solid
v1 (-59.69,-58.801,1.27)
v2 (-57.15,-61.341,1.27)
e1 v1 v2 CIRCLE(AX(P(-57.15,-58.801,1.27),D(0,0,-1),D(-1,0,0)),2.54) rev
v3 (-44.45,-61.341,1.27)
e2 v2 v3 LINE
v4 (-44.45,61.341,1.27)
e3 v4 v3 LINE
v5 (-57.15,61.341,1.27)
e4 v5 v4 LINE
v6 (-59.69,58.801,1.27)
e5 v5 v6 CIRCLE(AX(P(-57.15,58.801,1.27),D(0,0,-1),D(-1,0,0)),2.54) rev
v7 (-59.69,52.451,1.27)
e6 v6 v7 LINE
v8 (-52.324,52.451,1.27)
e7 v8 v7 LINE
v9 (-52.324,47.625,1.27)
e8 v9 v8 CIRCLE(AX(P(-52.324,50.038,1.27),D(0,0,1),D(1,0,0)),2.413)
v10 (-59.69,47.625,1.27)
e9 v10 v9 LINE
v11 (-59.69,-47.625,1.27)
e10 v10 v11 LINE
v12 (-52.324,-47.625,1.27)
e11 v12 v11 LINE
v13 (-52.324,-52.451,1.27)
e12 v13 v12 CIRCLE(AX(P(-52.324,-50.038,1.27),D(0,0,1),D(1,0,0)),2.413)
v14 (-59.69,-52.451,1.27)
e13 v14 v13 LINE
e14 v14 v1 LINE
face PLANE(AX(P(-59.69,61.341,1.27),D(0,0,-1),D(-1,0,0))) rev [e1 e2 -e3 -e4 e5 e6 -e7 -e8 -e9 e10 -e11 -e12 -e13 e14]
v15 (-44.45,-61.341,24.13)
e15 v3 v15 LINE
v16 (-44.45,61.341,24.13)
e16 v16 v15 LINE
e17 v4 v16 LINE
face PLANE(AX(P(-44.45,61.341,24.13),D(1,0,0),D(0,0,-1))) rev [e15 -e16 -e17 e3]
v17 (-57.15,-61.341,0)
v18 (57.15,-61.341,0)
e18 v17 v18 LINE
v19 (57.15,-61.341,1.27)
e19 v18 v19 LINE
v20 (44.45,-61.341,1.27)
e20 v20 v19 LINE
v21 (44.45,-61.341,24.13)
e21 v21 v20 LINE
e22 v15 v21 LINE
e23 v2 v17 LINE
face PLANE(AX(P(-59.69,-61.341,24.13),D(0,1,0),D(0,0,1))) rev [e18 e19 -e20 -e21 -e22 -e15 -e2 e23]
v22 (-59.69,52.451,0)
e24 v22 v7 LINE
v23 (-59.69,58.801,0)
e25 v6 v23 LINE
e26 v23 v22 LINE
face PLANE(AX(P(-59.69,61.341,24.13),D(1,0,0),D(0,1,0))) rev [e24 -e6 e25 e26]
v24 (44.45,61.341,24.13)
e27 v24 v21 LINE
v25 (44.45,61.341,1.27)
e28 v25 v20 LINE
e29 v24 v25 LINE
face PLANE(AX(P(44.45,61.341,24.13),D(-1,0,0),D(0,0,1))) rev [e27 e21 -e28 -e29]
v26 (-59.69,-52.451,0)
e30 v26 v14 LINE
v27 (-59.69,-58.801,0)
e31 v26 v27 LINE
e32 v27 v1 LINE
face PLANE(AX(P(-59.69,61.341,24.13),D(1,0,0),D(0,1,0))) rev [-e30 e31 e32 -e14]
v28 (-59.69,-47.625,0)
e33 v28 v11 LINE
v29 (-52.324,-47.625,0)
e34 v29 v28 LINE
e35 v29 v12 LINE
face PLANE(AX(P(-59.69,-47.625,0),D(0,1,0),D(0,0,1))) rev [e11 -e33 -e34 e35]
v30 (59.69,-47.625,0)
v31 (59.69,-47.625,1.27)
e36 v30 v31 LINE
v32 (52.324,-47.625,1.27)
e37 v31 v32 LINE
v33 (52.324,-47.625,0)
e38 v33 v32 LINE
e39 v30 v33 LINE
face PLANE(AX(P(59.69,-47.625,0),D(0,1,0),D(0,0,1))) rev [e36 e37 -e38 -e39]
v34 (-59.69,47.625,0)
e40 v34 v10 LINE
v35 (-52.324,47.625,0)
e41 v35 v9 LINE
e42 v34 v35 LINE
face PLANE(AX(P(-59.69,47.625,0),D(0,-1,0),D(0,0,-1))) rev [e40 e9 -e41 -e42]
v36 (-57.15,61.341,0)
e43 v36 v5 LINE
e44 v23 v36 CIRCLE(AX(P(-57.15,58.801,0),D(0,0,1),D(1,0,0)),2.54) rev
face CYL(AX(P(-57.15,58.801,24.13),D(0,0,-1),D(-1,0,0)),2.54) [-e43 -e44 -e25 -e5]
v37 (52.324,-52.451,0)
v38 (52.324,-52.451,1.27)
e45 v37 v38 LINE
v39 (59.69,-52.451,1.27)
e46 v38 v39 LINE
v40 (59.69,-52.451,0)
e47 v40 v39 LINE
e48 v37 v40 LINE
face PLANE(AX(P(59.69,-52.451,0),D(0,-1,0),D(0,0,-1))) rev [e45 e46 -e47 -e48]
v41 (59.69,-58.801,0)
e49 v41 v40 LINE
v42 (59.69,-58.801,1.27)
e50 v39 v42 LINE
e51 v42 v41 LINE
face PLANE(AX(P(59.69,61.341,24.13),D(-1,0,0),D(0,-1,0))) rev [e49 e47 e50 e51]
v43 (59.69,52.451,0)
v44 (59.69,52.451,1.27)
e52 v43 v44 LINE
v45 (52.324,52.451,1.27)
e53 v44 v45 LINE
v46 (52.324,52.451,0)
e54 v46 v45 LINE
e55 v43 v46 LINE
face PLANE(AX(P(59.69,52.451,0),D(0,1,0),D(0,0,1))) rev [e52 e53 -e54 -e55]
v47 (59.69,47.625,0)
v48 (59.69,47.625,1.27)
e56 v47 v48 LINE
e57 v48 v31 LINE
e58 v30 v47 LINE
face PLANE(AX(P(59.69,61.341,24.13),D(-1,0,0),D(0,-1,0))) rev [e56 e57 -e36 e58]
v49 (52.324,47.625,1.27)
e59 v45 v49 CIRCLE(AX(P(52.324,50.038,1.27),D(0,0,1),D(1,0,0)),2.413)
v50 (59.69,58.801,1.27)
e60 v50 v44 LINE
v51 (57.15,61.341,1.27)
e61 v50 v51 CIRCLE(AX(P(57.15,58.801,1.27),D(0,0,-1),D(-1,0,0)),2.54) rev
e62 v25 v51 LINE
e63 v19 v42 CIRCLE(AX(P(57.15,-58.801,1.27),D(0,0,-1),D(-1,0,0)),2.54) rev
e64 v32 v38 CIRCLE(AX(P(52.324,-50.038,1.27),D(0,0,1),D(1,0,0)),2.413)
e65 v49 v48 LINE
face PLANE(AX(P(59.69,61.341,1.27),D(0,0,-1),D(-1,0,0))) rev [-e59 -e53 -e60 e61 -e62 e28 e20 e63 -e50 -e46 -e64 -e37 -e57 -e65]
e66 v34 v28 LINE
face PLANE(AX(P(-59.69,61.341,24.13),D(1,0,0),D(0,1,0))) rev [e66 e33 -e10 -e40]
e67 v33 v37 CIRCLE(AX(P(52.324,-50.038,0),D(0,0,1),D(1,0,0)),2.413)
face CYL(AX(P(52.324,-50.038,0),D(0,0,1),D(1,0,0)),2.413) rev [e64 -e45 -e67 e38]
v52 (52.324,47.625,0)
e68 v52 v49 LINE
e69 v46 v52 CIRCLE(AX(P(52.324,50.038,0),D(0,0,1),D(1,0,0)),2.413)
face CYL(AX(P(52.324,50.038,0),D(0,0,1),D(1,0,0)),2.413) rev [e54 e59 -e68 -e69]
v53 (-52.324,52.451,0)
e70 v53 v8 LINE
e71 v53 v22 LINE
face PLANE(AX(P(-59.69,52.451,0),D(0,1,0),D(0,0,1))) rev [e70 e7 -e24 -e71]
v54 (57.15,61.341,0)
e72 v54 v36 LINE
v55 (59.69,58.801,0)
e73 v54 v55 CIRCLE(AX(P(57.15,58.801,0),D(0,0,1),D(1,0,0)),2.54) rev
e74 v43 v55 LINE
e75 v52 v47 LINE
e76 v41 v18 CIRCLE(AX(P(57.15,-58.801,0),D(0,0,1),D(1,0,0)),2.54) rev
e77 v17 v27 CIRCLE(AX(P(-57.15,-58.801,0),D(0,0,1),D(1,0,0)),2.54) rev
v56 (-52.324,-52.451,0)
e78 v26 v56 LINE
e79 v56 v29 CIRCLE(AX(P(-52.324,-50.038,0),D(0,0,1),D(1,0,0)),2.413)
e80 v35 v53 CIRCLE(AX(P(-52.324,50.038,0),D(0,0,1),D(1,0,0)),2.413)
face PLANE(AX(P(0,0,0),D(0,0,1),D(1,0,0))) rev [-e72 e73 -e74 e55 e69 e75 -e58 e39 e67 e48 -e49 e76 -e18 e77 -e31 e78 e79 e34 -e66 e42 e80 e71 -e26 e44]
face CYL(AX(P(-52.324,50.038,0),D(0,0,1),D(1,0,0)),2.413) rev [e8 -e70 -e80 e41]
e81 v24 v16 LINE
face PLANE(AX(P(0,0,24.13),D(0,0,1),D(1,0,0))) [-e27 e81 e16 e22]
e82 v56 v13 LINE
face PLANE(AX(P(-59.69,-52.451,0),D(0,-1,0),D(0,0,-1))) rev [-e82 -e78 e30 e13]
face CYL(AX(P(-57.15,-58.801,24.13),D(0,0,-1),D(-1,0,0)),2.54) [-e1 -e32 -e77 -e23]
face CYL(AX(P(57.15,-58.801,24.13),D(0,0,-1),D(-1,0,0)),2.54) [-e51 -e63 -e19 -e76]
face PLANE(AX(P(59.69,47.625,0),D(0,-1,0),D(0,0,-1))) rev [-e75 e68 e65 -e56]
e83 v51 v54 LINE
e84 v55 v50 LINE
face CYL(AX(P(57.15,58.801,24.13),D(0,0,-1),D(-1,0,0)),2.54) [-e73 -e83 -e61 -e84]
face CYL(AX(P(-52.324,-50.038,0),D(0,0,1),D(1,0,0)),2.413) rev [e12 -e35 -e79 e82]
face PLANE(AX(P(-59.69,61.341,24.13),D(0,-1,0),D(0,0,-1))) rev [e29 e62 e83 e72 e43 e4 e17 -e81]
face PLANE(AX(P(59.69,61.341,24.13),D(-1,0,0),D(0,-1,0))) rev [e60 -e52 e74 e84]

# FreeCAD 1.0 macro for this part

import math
import FreeCAD as App
import Part
import Sketcher

V = App.Vector
Q = App.Units.Quantity


def edges_at(feature, points):
    """Names of the edges that pass closest to the given points."""
    edges = feature.Shape.Edges
    near = lambda p: min(range(len(edges)), key=lambda i: edges[i].distToShape(Part.Vertex(*p))[0])
    return sorted({f"Edge{near(p) + 1}" for p in points})


def add_polygon(sketch, points):
    """Adds a closed chain of lines whose ends are joined by coincident constraints."""
    first, n = sketch.GeometryCount, len(points)
    for a, b in zip(points, points[1:] + points[:1]):
        sketch.addGeometry(Part.LineSegment(App.Vector(*a, 0), App.Vector(*b, 0)), False)
    for i in range(n):
        sketch.addConstraint(Sketcher.Constraint("Coincident", first + i, 2, first + (i + 1) % n, 1))

doc = App.newDocument("Part")
body = doc.addObject("PartDesign::Body", "Body")

# Sketch on XY plane
sketch1 = body.newObject("Sketcher::SketchObject", "Sketch")
sketch1.AttachmentSupport = (doc.getObject("XY_Plane"), [""])
sketch1.MapMode = "FlatFace"
add_polygon(sketch1, [(-60, 61), (-60, -61), (60, -61), (60, 61)])  # lines 0-3
sketch1.addConstraint(Sketcher.Constraint("Vertical", 0))
sketch1.addConstraint(Sketcher.Constraint("Horizontal", 1))
sketch1.addConstraint(Sketcher.Constraint("Vertical", 2))
sketch1.addConstraint(Sketcher.Constraint("Horizontal", 3))
sketch1.addConstraint(Sketcher.Constraint("Symmetric", 0, 2, 2, 2, -1, 1))
sketch1.addConstraint(Sketcher.Constraint("DistanceX", 1, 1, 1, 2, Q("4.7 in")))
sketch1.addConstraint(Sketcher.Constraint("DistanceY", 0, 2, 0, 1, Q("4.83 in")))
pad1 = body.newObject("PartDesign::Pad", "Pad")
pad1.Profile = sketch1
pad1.Length = Q("0.95 in")

# Sketch on XZ plane
sketch2 = body.newObject("Sketcher::SketchObject", "Sketch001")
sketch2.AttachmentSupport = (doc.getObject("XZ_Plane"), [""])
sketch2.MapMode = "FlatFace"
sketch2.AttachmentOffset = App.Placement(V(0, 0, 2.415 * 25.4), App.Rotation())
add_polygon(sketch2, [(44, 24), (44, 1), (60, 1), (60, 24)])  # lines 0-3
add_polygon(sketch2, [(-60, 24), (-60, 1), (-44, 1), (-44, 24)])  # lines 4-7
sketch2.addConstraint(Sketcher.Constraint("Vertical", 0))
sketch2.addConstraint(Sketcher.Constraint("Horizontal", 1))
sketch2.addConstraint(Sketcher.Constraint("Vertical", 2))
sketch2.addConstraint(Sketcher.Constraint("Horizontal", 3))
sketch2.addConstraint(Sketcher.Constraint("Vertical", 4))
sketch2.addConstraint(Sketcher.Constraint("Horizontal", 5))
sketch2.addConstraint(Sketcher.Constraint("Vertical", 6))
sketch2.addConstraint(Sketcher.Constraint("Horizontal", 7))
sketch2.addConstraint(Sketcher.Constraint("Symmetric", 1, 2, 4, 2, -2))
sketch2.addConstraint(Sketcher.Constraint("Symmetric", 3, 2, 6, 2, -2))
sketch2.addConstraint(Sketcher.Constraint("DistanceX", 1, 1, 1, 2, Q("0.6 in")))
sketch2.addConstraint(Sketcher.Constraint("DistanceY", 0, 2, 0, 1, Q("0.9 in")))
sketch2.addConstraint(Sketcher.Constraint("DistanceX", 4, 2, 0, 2, Q("4.1 in")))
sketch2.addConstraint(Sketcher.Constraint("DistanceY", -1, 1, 0, 2, Q("0.05 in")))
pocket1 = body.newObject("PartDesign::Pocket", "Pocket")
pocket1.Profile = sketch2
pocket1.Type = "ThroughAll"

# Sketch on XY plane
sketch3 = body.newObject("Sketcher::SketchObject", "Sketch002")
sketch3.AttachmentSupport = (doc.getObject("XY_Plane"), [""])
sketch3.MapMode = "FlatFace"
sketch3.AttachmentOffset = App.Placement(V(0, 0, 0.05 * 25.4), App.Rotation())
sketch3.addGeometry(Part.LineSegment(V(-52.3, 52.5, 0), V(-59.7, 52.5, 0)), False)
sketch3.addGeometry(Part.ArcOfCircle(Part.Circle(V(-59.7, 50, 0), V(0, 0, 1), 2.4), math.radians(90), math.radians(270)), False)
sketch3.addGeometry(Part.LineSegment(V(-59.7, 47.6, 0), V(-52.3, 47.6, 0)), False)
sketch3.addGeometry(Part.ArcOfCircle(Part.Circle(V(-52.3, 50, 0), V(0, 0, 1), 2.4), math.radians(-90), math.radians(90)), False)
sketch3.addGeometry(Part.LineSegment(V(-52.3, -47.6, 0), V(-59.7, -47.6, 0)), False)
sketch3.addGeometry(Part.ArcOfCircle(Part.Circle(V(-59.7, -50, 0), V(0, 0, 1), 2.4), math.radians(90), math.radians(270)), False)
sketch3.addGeometry(Part.LineSegment(V(-59.7, -52.5, 0), V(-52.3, -52.5, 0)), False)
sketch3.addGeometry(Part.ArcOfCircle(Part.Circle(V(-52.3, -50, 0), V(0, 0, 1), 2.4), math.radians(-90), math.radians(90)), False)
sketch3.addGeometry(Part.LineSegment(V(52.3, -52.5, 0), V(59.7, -52.5, 0)), False)
sketch3.addGeometry(Part.ArcOfCircle(Part.Circle(V(59.7, -50, 0), V(0, 0, 1), 2.4), math.radians(-90), math.radians(90)), False)
sketch3.addGeometry(Part.LineSegment(V(59.7, -47.6, 0), V(52.3, -47.6, 0)), False)
sketch3.addGeometry(Part.ArcOfCircle(Part.Circle(V(52.3, -50, 0), V(0, 0, 1), 2.4), math.radians(90), math.radians(270)), False)
sketch3.addGeometry(Part.LineSegment(V(52.3, 47.6, 0), V(59.7, 47.6, 0)), False)
sketch3.addGeometry(Part.ArcOfCircle(Part.Circle(V(59.7, 50, 0), V(0, 0, 1), 2.4), math.radians(-90), math.radians(90)), False)
sketch3.addGeometry(Part.LineSegment(V(59.7, 52.5, 0), V(52.3, 52.5, 0)), False)
sketch3.addGeometry(Part.ArcOfCircle(Part.Circle(V(52.3, 50, 0), V(0, 0, 1), 2.4), math.radians(90), math.radians(270)), False)
sketch3.addConstraint(Sketcher.Constraint("Tangent", 0, 2, 1, 1))
sketch3.addConstraint(Sketcher.Constraint("Tangent", 1, 2, 2, 1))
sketch3.addConstraint(Sketcher.Constraint("Tangent", 2, 2, 3, 1))
sketch3.addConstraint(Sketcher.Constraint("Tangent", 3, 2, 0, 1))
sketch3.addConstraint(Sketcher.Constraint("Tangent", 4, 2, 5, 1))
sketch3.addConstraint(Sketcher.Constraint("Tangent", 5, 2, 6, 1))
sketch3.addConstraint(Sketcher.Constraint("Tangent", 6, 2, 7, 1))
sketch3.addConstraint(Sketcher.Constraint("Tangent", 7, 2, 4, 1))
sketch3.addConstraint(Sketcher.Constraint("Tangent", 8, 2, 9, 1))
sketch3.addConstraint(Sketcher.Constraint("Tangent", 9, 2, 10, 1))
sketch3.addConstraint(Sketcher.Constraint("Tangent", 10, 2, 11, 1))
sketch3.addConstraint(Sketcher.Constraint("Tangent", 11, 2, 8, 1))
sketch3.addConstraint(Sketcher.Constraint("Tangent", 12, 2, 13, 1))
sketch3.addConstraint(Sketcher.Constraint("Tangent", 13, 2, 14, 1))
sketch3.addConstraint(Sketcher.Constraint("Tangent", 14, 2, 15, 1))
sketch3.addConstraint(Sketcher.Constraint("Tangent", 15, 2, 12, 1))
sketch3.addConstraint(Sketcher.Constraint("Horizontal", 0))
sketch3.addConstraint(Sketcher.Constraint("Horizontal", 2))
sketch3.addConstraint(Sketcher.Constraint("Horizontal", 4))
sketch3.addConstraint(Sketcher.Constraint("Horizontal", 6))
sketch3.addConstraint(Sketcher.Constraint("Horizontal", 8))
sketch3.addConstraint(Sketcher.Constraint("Horizontal", 10))
sketch3.addConstraint(Sketcher.Constraint("Horizontal", 12))
sketch3.addConstraint(Sketcher.Constraint("Horizontal", 14))
sketch3.addConstraint(Sketcher.Constraint("Equal", 3, 5))
sketch3.addConstraint(Sketcher.Constraint("Equal", 7, 9))
sketch3.addConstraint(Sketcher.Constraint("Equal", 11, 13))
sketch3.addConstraint(Sketcher.Constraint("Symmetric", 1, 3, 9, 3, -1, 1))
sketch3.addConstraint(Sketcher.Constraint("Symmetric", 5, 3, 13, 3, -1, 1))
sketch3.addConstraint(Sketcher.Constraint("Symmetric", 5, 3, 9, 3, -2))
sketch3.addConstraint(Sketcher.Constraint("Vertical", 3, 3, 7, 3))
sketch3.addConstraint(Sketcher.Constraint("Vertical", 11, 3, 15, 3))
sketch3.addConstraint(Sketcher.Constraint("Equal", 6, 8))
sketch3.addConstraint(Sketcher.Constraint("Radius", 1, Q("0.095 in")))
sketch3.addConstraint(Sketcher.Constraint("DistanceX", 0, 2, 0, 1, Q("0.29 in")))
sketch3.addConstraint(Sketcher.Constraint("DistanceX", 5, 3, 9, 3, Q("4.7 in")))
sketch3.addConstraint(Sketcher.Constraint("DistanceY", -1, 1, 1, 3, Q("1.97 in")))
pocket2 = body.newObject("PartDesign::Pocket", "Pocket001")
pocket2.Profile = sketch3
pocket2.Type = "ThroughAll"
doc.recompute()

fillet = body.newObject("PartDesign::Fillet", "Fillet")
fillet.Base = (pocket2, edges_at(pocket2, [
    (59.69, -61.341, 0.635),
    (-59.69, -61.341, 0.635),
    (-59.69, 61.341, 0.635),
    (59.69, 61.341, 0.635),
]))
fillet.Radius = Q("0.1 in")

doc.recompute()
